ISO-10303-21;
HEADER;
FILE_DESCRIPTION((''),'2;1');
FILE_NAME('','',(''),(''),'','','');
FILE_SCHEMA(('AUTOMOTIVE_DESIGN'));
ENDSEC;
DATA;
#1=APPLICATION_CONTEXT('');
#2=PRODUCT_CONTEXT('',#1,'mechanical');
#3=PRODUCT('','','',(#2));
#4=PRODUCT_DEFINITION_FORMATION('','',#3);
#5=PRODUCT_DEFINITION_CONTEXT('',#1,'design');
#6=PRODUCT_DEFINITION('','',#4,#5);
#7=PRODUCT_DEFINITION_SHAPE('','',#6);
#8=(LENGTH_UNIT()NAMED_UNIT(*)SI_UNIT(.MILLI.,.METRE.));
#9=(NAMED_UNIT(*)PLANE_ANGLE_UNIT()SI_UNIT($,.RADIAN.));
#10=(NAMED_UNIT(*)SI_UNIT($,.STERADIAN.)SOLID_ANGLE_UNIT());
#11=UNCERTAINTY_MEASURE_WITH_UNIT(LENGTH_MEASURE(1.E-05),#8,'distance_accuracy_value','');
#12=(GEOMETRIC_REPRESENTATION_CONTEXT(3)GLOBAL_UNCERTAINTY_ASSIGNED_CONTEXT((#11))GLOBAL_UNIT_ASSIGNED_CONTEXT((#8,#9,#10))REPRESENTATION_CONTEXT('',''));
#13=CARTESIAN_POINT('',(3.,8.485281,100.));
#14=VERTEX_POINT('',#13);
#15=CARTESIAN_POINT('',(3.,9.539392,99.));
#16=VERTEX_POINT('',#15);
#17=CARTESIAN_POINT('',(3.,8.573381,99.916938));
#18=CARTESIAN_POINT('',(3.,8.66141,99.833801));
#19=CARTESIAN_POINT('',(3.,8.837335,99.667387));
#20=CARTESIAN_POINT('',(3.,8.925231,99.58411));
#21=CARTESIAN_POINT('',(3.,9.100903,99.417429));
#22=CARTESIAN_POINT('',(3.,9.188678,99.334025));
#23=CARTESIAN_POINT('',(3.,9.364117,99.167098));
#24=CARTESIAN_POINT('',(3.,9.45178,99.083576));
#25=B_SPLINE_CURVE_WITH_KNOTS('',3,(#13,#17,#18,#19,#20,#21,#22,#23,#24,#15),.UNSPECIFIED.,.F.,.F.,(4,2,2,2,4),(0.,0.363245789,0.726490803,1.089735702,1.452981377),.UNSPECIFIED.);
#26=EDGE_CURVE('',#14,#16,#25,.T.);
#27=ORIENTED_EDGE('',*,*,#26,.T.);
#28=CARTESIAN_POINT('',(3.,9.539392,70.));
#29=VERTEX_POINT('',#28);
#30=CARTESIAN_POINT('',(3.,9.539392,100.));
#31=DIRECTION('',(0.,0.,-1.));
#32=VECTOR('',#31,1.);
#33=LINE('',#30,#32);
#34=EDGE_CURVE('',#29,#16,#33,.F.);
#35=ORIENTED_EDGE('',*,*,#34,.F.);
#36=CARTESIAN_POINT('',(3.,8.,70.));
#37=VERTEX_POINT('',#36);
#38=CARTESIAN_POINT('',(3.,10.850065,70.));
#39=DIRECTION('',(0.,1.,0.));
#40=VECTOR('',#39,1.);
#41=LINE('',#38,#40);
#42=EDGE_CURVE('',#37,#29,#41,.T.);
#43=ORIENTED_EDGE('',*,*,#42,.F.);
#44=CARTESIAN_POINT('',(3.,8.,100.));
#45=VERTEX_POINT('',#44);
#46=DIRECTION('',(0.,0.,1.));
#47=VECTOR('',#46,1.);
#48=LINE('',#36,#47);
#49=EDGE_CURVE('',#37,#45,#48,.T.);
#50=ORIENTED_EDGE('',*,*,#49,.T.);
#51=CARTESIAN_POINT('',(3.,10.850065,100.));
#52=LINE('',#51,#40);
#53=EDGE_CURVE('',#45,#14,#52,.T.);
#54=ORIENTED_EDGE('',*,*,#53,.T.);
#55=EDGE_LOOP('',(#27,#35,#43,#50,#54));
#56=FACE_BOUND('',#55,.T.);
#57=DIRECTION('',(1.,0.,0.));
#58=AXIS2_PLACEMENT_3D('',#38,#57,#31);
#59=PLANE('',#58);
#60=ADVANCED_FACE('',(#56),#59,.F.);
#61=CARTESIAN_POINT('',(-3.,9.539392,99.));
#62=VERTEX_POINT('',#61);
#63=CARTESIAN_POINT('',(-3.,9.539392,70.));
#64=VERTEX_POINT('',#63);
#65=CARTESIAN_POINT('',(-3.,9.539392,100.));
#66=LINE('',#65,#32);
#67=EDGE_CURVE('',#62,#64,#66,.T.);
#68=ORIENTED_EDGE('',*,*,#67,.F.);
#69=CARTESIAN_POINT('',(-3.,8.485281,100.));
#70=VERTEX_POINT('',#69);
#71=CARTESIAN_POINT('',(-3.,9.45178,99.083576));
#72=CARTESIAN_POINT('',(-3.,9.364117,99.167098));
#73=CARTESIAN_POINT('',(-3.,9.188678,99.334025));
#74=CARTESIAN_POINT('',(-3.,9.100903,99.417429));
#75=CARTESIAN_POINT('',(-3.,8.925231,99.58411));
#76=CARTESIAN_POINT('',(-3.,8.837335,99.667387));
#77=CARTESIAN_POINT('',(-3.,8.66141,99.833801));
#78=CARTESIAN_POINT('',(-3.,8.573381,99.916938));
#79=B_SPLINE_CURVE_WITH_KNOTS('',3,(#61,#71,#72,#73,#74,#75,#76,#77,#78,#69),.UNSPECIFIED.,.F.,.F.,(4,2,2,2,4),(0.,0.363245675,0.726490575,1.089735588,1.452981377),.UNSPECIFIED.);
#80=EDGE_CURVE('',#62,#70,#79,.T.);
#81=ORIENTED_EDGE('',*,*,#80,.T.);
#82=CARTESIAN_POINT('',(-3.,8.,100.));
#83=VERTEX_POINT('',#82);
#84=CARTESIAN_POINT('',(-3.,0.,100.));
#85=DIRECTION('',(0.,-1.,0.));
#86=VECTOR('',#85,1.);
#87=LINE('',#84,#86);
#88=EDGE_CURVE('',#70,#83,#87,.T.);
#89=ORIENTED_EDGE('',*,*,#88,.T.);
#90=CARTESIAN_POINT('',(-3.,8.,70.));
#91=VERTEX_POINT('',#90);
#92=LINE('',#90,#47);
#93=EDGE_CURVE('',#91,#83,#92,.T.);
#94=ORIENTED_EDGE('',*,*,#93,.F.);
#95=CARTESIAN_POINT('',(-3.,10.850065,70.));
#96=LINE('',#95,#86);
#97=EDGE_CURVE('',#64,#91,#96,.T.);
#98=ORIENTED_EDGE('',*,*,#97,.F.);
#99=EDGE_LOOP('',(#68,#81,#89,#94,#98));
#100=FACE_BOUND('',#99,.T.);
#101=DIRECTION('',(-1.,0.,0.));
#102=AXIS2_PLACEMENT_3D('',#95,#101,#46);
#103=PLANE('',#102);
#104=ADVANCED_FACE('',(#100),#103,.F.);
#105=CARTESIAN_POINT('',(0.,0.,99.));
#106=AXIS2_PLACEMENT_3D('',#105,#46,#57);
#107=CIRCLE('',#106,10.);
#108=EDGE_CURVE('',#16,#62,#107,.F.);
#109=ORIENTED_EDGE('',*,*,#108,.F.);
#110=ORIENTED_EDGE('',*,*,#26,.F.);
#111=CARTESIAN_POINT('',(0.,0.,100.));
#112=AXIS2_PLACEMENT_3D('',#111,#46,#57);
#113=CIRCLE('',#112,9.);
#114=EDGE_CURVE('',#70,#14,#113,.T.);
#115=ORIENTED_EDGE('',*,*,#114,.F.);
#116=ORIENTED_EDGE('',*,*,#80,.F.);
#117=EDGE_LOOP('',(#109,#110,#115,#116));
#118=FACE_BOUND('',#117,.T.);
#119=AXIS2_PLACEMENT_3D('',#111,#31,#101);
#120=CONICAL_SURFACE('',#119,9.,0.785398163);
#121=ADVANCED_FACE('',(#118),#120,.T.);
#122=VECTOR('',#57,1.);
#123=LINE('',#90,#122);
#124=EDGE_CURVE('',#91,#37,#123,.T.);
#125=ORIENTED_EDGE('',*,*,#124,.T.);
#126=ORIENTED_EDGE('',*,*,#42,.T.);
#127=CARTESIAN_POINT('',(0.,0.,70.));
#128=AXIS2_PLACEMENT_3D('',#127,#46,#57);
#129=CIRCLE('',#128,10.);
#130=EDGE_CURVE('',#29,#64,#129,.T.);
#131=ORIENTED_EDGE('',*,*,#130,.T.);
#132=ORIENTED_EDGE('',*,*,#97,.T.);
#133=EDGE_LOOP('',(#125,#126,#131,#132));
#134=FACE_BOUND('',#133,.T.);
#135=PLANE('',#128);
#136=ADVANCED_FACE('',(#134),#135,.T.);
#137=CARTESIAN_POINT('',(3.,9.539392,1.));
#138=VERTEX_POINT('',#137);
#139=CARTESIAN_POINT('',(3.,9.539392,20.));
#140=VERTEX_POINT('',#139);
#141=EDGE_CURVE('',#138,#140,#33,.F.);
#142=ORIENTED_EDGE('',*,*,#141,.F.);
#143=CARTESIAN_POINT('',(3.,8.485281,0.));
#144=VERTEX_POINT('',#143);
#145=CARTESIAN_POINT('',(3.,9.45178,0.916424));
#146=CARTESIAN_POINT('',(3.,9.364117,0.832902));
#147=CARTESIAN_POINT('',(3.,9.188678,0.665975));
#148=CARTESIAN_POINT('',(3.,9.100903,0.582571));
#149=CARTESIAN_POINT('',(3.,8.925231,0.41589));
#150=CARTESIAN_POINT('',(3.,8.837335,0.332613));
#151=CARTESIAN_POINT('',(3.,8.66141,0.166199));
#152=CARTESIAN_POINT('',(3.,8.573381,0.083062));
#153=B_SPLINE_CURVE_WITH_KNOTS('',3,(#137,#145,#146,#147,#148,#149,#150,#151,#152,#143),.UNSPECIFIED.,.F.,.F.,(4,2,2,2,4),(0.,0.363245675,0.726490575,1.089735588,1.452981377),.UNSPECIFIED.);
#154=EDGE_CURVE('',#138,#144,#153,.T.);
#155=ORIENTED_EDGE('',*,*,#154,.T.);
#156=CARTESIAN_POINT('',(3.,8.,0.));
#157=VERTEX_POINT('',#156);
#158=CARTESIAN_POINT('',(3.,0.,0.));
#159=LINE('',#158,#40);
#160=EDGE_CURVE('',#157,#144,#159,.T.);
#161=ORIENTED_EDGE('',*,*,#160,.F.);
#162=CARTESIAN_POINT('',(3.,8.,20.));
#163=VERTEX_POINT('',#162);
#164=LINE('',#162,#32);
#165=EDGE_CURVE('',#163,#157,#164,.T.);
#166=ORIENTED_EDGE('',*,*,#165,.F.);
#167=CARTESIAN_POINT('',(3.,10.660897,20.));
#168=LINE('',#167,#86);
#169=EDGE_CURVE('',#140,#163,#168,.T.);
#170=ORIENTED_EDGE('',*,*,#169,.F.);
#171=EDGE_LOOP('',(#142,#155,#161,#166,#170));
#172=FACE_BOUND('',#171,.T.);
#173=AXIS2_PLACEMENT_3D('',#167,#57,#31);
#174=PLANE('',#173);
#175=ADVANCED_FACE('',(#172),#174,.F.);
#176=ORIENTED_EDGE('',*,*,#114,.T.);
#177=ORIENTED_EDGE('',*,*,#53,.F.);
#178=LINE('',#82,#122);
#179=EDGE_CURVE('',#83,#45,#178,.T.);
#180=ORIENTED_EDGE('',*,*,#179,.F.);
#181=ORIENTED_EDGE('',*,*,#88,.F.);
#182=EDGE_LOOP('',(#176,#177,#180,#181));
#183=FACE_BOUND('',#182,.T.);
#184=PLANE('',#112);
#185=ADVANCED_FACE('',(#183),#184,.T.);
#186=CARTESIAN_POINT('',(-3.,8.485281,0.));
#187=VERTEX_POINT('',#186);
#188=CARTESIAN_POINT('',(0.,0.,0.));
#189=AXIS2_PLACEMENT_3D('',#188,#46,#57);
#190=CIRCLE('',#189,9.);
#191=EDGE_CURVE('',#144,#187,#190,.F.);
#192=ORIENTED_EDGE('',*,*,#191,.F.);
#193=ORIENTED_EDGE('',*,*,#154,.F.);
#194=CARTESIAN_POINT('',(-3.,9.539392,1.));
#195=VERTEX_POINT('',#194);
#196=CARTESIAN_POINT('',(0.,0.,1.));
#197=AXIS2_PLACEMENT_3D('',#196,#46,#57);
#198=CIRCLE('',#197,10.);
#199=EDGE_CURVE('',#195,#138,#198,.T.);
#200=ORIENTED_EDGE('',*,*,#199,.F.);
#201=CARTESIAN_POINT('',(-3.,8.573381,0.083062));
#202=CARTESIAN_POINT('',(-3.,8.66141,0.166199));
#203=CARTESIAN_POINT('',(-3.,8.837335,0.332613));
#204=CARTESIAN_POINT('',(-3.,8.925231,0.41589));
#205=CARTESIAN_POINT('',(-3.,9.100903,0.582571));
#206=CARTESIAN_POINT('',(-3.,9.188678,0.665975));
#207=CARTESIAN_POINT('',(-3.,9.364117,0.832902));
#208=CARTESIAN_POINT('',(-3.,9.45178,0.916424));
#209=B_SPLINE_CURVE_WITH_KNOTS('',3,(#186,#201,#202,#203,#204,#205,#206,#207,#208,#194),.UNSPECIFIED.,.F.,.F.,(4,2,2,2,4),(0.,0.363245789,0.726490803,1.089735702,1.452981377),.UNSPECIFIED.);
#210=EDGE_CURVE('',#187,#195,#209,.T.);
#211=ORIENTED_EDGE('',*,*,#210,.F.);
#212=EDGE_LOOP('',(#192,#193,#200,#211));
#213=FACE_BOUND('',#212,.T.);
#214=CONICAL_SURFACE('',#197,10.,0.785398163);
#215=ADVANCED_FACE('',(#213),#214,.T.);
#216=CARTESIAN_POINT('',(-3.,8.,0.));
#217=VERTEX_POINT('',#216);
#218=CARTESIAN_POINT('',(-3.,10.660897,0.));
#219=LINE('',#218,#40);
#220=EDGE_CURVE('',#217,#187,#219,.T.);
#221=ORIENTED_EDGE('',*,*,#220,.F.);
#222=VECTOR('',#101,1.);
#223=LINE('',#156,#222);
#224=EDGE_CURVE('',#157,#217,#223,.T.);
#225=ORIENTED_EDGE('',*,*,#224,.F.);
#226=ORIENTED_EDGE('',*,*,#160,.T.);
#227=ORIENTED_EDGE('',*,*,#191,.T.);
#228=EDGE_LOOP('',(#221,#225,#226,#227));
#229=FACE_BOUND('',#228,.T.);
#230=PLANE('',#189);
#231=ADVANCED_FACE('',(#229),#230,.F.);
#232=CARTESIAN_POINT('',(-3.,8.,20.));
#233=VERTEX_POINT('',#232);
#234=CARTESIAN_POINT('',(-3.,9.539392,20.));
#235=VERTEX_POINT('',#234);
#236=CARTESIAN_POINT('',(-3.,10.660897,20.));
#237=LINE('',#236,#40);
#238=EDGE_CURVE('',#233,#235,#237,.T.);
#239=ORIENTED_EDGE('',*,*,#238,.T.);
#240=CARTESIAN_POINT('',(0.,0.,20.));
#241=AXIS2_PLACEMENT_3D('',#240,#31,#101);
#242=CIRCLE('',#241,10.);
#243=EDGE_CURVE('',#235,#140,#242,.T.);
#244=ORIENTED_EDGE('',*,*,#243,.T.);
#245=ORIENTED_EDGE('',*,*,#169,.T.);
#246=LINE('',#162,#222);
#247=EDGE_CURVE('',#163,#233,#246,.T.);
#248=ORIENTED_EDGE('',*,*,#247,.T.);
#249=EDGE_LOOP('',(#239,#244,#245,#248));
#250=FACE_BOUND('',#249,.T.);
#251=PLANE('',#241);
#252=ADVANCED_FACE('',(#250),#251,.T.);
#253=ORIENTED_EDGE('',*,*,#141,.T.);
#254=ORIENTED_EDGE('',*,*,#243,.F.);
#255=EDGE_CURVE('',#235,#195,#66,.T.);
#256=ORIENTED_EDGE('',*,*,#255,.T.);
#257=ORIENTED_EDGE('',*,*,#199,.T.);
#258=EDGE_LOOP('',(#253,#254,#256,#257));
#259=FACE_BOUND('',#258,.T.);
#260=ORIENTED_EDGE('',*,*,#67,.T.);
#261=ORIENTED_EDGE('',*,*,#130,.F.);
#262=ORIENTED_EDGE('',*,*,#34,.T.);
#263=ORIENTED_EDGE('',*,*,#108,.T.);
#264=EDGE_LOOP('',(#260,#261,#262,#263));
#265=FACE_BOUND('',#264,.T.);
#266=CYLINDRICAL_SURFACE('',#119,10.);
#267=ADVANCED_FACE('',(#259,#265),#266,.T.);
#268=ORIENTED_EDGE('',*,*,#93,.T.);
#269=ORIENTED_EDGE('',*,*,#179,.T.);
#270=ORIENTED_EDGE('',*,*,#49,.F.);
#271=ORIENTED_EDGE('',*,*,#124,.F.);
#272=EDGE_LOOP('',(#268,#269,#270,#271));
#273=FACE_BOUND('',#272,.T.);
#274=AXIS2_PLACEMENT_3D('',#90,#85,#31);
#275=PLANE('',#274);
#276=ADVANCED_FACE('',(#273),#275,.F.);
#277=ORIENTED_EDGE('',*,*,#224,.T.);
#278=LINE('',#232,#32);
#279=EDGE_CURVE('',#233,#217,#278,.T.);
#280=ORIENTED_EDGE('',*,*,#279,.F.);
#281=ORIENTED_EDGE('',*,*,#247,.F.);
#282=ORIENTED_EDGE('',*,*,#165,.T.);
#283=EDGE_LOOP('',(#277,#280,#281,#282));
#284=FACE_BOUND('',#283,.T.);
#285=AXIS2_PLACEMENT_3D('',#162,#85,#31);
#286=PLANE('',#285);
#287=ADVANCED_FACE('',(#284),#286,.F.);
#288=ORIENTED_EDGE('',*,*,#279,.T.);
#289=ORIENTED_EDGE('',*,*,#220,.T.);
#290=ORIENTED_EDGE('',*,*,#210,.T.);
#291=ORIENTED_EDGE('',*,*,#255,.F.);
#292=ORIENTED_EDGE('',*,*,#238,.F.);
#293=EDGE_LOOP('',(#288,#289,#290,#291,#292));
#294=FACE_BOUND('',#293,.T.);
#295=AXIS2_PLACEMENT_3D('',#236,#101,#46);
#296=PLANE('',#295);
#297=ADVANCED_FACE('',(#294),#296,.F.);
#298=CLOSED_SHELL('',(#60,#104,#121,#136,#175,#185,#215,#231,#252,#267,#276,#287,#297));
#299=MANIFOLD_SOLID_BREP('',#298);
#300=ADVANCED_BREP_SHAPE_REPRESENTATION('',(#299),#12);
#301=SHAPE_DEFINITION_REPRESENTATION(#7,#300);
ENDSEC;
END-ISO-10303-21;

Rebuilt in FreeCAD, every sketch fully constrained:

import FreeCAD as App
import Part
import Sketcher
from FreeCAD import Vector


def edges_at(feature, points):
    """Names of the edges that pass closest to the given points."""
    edges = feature.Shape.Edges
    near = lambda p: min(range(len(edges)), key=lambda i: edges[i].distToShape(Part.Vertex(*p))[0])
    return sorted({f"Edge{near(p) + 1}" for p in points})

doc = App.newDocument("Part")
body = doc.addObject("PartDesign::Body", "Body")

sketch1 = doc.addObject("Sketcher::SketchObject", "Sketch")
body.addObject(sketch1)
sketch1.AttachmentSupport = (doc.XY_Plane, [""])
sketch1.MapMode = "FlatFace"
sketch1.addGeometry(Part.Circle(Vector(0, 0, 0), Vector(0, 0, 1), 10), False)
sketch1.addConstraint(Sketcher.Constraint("Coincident", 0, 3, -1, 1))
sketch1.addConstraint(Sketcher.Constraint("Diameter", 0, 20.0))
pad1 = doc.addObject("PartDesign::Pad", "Pad")
body.addObject(pad1)
pad1.Profile = sketch1
pad1.Length = 100

sketch2 = doc.addObject("Sketcher::SketchObject", "Sketch001")
body.addObject(sketch2)
sketch2.AttachmentSupport = (doc.XY_Plane, [""])
sketch2.MapMode = "FlatFace"
sketch2.AttachmentOffset = App.Placement(Vector(0, 0, 100), App.Rotation())
sketch2.addGeometry(Part.LineSegment(Vector(-3, 10.850065, 0), Vector(-3, 8, 0)), False)
sketch2.addGeometry(Part.LineSegment(Vector(-3, 8, 0), Vector(3, 8, 0)), False)
sketch2.addGeometry(Part.LineSegment(Vector(3, 8, 0), Vector(3, 10.850065, 0)), False)
sketch2.addGeometry(Part.LineSegment(Vector(3, 10.850065, 0), Vector(-3, 10.850065, 0)), False)
sketch2.addConstraint(Sketcher.Constraint("Coincident", 0, 2, 1, 1))
sketch2.addConstraint(Sketcher.Constraint("Coincident", 1, 2, 2, 1))
sketch2.addConstraint(Sketcher.Constraint("Coincident", 2, 2, 3, 1))
sketch2.addConstraint(Sketcher.Constraint("Coincident", 3, 2, 0, 1))
sketch2.addConstraint(Sketcher.Constraint("Vertical", 0))
sketch2.addConstraint(Sketcher.Constraint("Horizontal", 1))
sketch2.addConstraint(Sketcher.Constraint("Vertical", 2))
sketch2.addConstraint(Sketcher.Constraint("Horizontal", 3))
sketch2.addConstraint(Sketcher.Constraint("DistanceX", 1, 1, 1, 2, 6.0))
sketch2.addConstraint(Sketcher.Constraint("DistanceX", 0, 2, -1, 1, 3.0))
sketch2.addConstraint(Sketcher.Constraint("DistanceY", -1, 1, 0, 2, 8.0))
sketch2.addConstraint(Sketcher.Constraint("DistanceY", 0, 2, 0, 1, 2.850065))
pocket1 = doc.addObject("PartDesign::Pocket", "Pocket")
body.addObject(pocket1)
pocket1.Profile = sketch2
pocket1.Length = 30

sketch3 = doc.addObject("Sketcher::SketchObject", "Sketch002")
body.addObject(sketch3)
sketch3.AttachmentSupport = (doc.XY_Plane, [""])
sketch3.MapMode = "FlatFace"
sketch3.addGeometry(Part.LineSegment(Vector(3, 10.660897, 0), Vector(3, 8, 0)), False)
sketch3.addGeometry(Part.LineSegment(Vector(3, 8, 0), Vector(-3, 8, 0)), False)
sketch3.addGeometry(Part.LineSegment(Vector(-3, 8, 0), Vector(-3, 10.660897, 0)), False)
sketch3.addGeometry(Part.LineSegment(Vector(-3, 10.660897, 0), Vector(3, 10.660897, 0)), False)
sketch3.addConstraint(Sketcher.Constraint("Coincident", 0, 2, 1, 1))
sketch3.addConstraint(Sketcher.Constraint("Coincident", 1, 2, 2, 1))
sketch3.addConstraint(Sketcher.Constraint("Coincident", 2, 2, 3, 1))
sketch3.addConstraint(Sketcher.Constraint("Coincident", 3, 2, 0, 1))
sketch3.addConstraint(Sketcher.Constraint("Vertical", 0))
sketch3.addConstraint(Sketcher.Constraint("Horizontal", 1))
sketch3.addConstraint(Sketcher.Constraint("Vertical", 2))
sketch3.addConstraint(Sketcher.Constraint("Horizontal", 3))
sketch3.addConstraint(Sketcher.Constraint("DistanceX", 1, 2, 1, 1, 6.0))
sketch3.addConstraint(Sketcher.Constraint("DistanceX", -1, 1, 0, 2, 3.0))
sketch3.addConstraint(Sketcher.Constraint("DistanceY", -1, 1, 0, 2, 8.0))
sketch3.addConstraint(Sketcher.Constraint("DistanceY", 0, 2, 0, 1, 2.660897))
pocket2 = doc.addObject("PartDesign::Pocket", "Pocket001")
body.addObject(pocket2)
pocket2.Profile = sketch3
pocket2.Length = 20
pocket2.Reversed = True
doc.recompute()

chamfer = doc.addObject("PartDesign::Chamfer", "Chamfer")
body.addObject(chamfer)
chamfer.Base = (pocket2, edges_at(pocket2, [(-5.916, -8.062, 0), (-5.916, -8.062, 100)]))
chamfer.Size = 1

doc.recompute()
